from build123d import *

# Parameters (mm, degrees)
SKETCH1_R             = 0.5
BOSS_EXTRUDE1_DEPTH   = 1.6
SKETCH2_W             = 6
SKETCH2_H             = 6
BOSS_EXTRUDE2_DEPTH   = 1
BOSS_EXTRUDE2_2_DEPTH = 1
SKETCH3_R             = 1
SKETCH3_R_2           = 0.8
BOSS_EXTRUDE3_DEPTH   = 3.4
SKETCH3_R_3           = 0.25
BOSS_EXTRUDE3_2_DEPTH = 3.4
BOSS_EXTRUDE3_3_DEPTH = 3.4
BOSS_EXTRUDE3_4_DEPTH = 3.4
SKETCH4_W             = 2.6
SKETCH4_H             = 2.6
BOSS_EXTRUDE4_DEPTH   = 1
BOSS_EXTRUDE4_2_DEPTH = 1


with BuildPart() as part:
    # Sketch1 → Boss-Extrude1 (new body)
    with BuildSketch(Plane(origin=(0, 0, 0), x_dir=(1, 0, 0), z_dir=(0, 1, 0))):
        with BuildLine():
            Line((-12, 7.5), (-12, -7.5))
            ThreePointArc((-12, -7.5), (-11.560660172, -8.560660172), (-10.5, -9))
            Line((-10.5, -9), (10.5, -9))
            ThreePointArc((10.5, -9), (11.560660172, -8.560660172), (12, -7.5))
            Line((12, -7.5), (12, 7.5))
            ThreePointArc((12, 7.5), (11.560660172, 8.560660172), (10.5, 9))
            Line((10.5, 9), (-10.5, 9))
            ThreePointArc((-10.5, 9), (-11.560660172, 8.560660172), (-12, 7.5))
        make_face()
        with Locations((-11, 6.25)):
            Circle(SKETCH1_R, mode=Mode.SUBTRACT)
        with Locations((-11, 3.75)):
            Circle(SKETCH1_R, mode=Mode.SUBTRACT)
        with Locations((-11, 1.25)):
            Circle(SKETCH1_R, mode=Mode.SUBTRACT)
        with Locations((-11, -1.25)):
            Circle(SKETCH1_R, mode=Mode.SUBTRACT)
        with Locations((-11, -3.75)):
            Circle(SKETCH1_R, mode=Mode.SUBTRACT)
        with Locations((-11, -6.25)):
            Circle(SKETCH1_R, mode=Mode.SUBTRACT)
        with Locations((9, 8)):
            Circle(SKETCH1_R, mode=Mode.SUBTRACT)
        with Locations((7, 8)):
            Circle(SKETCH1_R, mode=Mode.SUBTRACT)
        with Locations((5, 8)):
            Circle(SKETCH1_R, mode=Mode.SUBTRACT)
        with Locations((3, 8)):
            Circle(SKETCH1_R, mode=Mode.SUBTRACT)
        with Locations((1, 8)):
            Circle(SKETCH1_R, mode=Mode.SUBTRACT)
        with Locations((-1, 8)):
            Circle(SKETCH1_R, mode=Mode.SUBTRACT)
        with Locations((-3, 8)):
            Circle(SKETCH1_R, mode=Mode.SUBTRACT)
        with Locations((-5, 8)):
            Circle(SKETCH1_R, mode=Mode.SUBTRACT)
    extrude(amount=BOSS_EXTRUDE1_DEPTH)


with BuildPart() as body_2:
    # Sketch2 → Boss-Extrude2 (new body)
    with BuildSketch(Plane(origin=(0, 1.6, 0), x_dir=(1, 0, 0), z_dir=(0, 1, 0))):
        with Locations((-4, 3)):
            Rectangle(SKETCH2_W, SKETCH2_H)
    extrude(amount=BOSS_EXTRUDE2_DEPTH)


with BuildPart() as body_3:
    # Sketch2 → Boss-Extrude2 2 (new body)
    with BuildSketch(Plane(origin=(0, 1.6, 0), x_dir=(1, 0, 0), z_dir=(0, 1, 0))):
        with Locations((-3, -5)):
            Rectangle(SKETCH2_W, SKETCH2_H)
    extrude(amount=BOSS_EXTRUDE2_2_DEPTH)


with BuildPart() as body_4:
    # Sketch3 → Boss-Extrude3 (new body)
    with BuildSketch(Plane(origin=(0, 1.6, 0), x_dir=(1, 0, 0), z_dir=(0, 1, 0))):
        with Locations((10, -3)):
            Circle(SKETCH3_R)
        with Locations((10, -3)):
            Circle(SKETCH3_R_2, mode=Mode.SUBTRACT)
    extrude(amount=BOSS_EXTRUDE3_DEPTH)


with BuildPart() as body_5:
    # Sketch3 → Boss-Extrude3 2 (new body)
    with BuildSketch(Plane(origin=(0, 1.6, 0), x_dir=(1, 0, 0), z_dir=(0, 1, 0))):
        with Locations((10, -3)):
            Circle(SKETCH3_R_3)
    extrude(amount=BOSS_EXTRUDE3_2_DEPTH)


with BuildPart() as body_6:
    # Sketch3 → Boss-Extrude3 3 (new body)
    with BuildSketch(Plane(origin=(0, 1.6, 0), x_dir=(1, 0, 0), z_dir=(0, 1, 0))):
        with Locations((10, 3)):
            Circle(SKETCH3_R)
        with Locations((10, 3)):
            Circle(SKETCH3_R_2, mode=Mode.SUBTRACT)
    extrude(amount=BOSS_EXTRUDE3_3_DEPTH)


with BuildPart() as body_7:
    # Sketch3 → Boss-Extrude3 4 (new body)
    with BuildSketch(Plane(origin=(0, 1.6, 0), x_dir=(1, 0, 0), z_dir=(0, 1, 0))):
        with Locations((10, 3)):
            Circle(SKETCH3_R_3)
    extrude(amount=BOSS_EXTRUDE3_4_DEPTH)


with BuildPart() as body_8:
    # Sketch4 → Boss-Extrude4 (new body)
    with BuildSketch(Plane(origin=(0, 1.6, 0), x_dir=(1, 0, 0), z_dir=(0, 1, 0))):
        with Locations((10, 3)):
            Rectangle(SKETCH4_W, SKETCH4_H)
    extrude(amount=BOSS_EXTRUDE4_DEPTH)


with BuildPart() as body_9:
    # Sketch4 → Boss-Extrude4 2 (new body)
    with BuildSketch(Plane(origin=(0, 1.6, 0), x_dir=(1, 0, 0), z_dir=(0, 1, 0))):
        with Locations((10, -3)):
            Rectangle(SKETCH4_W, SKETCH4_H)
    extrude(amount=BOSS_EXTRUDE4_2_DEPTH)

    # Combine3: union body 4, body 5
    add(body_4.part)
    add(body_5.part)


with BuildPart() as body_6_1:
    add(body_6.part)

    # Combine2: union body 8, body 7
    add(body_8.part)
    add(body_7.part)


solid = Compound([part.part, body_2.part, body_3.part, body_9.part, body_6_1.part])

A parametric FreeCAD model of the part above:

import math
import FreeCAD as App
import Part
import Sketcher
from FreeCAD import Vector
Q = App.Units.Quantity


def add_polygon(sketch, points):
    """Adds a closed chain of lines whose ends are joined by coincident constraints."""
    first, n = sketch.GeometryCount, len(points)
    for a, b in zip(points, points[1:] + points[:1]):
        sketch.addGeometry(Part.LineSegment(App.Vector(*a, 0), App.Vector(*b, 0)), False)
    for i in range(n):
        sketch.addConstraint(Sketcher.Constraint("Coincident", first + i, 2, first + (i + 1) % n, 1))

doc = App.newDocument("Part")
body = doc.addObject("PartDesign::Body", "Body")

sketch1 = body.newObject("Sketcher::SketchObject", "Sketch")
sketch1.AttachmentSupport = (doc.getObject("XZ_Plane"), [""])
sketch1.MapMode = "FlatFace"
sketch1.addGeometry([
    Part.LineSegment(Vector(-12, -7.5, 0), Vector(-12, 7.5, 0)),
    Part.ArcOfCircle(Part.Circle(Vector(-10.5, 7.5, 0), Vector(0, 0, 1), 1.5), math.radians(90), math.radians(180)),
    Part.LineSegment(Vector(-10.5, 9, 0), Vector(10.5, 9, 0)),
    Part.ArcOfCircle(Part.Circle(Vector(10.5, 7.5, 0), Vector(0, 0, 1), 1.5), math.radians(0), math.radians(90)),
    Part.LineSegment(Vector(12, 7.5, 0), Vector(12, -7.5, 0)),
    Part.ArcOfCircle(Part.Circle(Vector(10.5, -7.5, 0), Vector(0, 0, 1), 1.5), math.radians(-90), math.radians(0)),
    Part.LineSegment(Vector(10.5, -9, 0), Vector(-10.5, -9, 0)),
    Part.ArcOfCircle(Part.Circle(Vector(-10.5, -7.5, 0), Vector(0, 0, 1), 1.5), math.radians(180), math.radians(270)),
    Part.Circle(Vector(-11, 6.2, 0), Vector(0, 0, 1), 0.5),
    Part.Circle(Vector(-11, 3.8, 0), Vector(0, 0, 1), 0.5),
    Part.Circle(Vector(-11, 1.2, 0), Vector(0, 0, 1), 0.5),
    Part.Circle(Vector(-11, -1.2, 0), Vector(0, 0, 1), 0.5),
    Part.Circle(Vector(-11, -3.8, 0), Vector(0, 0, 1), 0.5),
    Part.Circle(Vector(-11, -6.2, 0), Vector(0, 0, 1), 0.5),
    Part.Circle(Vector(-5, -8, 0), Vector(0, 0, 1), 0.5),
    Part.Circle(Vector(-3, -8, 0), Vector(0, 0, 1), 0.5),
    Part.Circle(Vector(-1, -8, 0), Vector(0, 0, 1), 0.5),
    Part.Circle(Vector(1, -8, 0), Vector(0, 0, 1), 0.5),
    Part.Circle(Vector(3, -8, 0), Vector(0, 0, 1), 0.5),
    Part.Circle(Vector(5, -8, 0), Vector(0, 0, 1), 0.5),
    Part.Circle(Vector(7, -8, 0), Vector(0, 0, 1), 0.5),
    Part.Circle(Vector(9, -8, 0), Vector(0, 0, 1), 0.5),
], False)
sketch1.addConstraint([
    Sketcher.Constraint("Tangent", 0, 2, 1, 2),
    Sketcher.Constraint("Tangent", 1, 1, 2, 1),
    Sketcher.Constraint("Tangent", 2, 2, 3, 2),
    Sketcher.Constraint("Tangent", 3, 1, 4, 1),
    Sketcher.Constraint("Tangent", 4, 2, 5, 2),
    Sketcher.Constraint("Tangent", 5, 1, 6, 1),
    Sketcher.Constraint("Tangent", 6, 2, 7, 2),
    Sketcher.Constraint("Tangent", 7, 1, 0, 1),
    Sketcher.Constraint("Vertical", 0),
    Sketcher.Constraint("Horizontal", 2),
    Sketcher.Constraint("Vertical", 4),
    Sketcher.Constraint("Horizontal", 6),
    Sketcher.Constraint("Equal", 1, 3),
    Sketcher.Constraint("Equal", 3, 5),
    Sketcher.Constraint("Equal", 5, 7),
    Sketcher.Constraint("Equal", 8, 9),
    Sketcher.Constraint("Equal", 9, 10),
    Sketcher.Constraint("Equal", 10, 11),
    Sketcher.Constraint("Equal", 11, 12),
    Sketcher.Constraint("Equal", 12, 13),
    Sketcher.Constraint("Equal", 13, 14),
    Sketcher.Constraint("Equal", 14, 15),
    Sketcher.Constraint("Equal", 15, 16),
    Sketcher.Constraint("Equal", 16, 17),
    Sketcher.Constraint("Equal", 17, 18),
    Sketcher.Constraint("Equal", 18, 19),
    Sketcher.Constraint("Equal", 19, 20),
    Sketcher.Constraint("Equal", 20, 21),
    Sketcher.Constraint("Symmetric", 1, 3, 5, 3, -1, 1),
    Sketcher.Constraint("Symmetric", 16, 3, 17, 3, -2),
    Sketcher.Constraint("Symmetric", 15, 3, 18, 3, -2),
    Sketcher.Constraint("Symmetric", 14, 3, 19, 3, -2),
    Sketcher.Constraint("Symmetric", 10, 3, 11, 3, -1),
    Sketcher.Constraint("Symmetric", 9, 3, 12, 3, -1),
    Sketcher.Constraint("Symmetric", 8, 3, 13, 3, -1),
    Sketcher.Constraint("Horizontal", 14, 3, 15, 3),
    Sketcher.Constraint("Horizontal", 15, 3, 16, 3),
    Sketcher.Constraint("Horizontal", 19, 3, 20, 3),
    Sketcher.Constraint("Horizontal", 20, 3, 21, 3),
    Sketcher.Constraint("Vertical", 8, 3, 9, 3),
    Sketcher.Constraint("Vertical", 9, 3, 10, 3),
    Sketcher.Constraint("Diameter", 8, Q("1 mm")),
    Sketcher.Constraint("Radius", 1, Q("1.5 mm")),
    Sketcher.Constraint("DistanceX", 2, 1, 2, 2, Q("21 mm")),
    Sketcher.Constraint("DistanceY", 0, 1, 0, 2, Q("15 mm")),
    Sketcher.Constraint("DistanceX", 8, 3, -1, 1, Q("11 mm")),
    Sketcher.Constraint("DistanceX", 14, 3, -1, 1, Q("5 mm")),
    Sketcher.Constraint("DistanceY", 14, 3, -1, 1, Q("8 mm")),
    Sketcher.Constraint("DistanceX", 15, 3, -1, 1, Q("3 mm")),
    Sketcher.Constraint("DistanceX", 16, 3, -1, 1, Q("1 mm")),
    Sketcher.Constraint("DistanceX", -1, 1, 20, 3, Q("7 mm")),
    Sketcher.Constraint("DistanceX", -1, 1, 21, 3, Q("9 mm")),
    Sketcher.Constraint("DistanceY", 10, 3, 8, 3, Q("5 mm")),
    Sketcher.Constraint("DistanceY", 11, 3, 9, 3, Q("5 mm")),
    Sketcher.Constraint("DistanceY", 9, 3, 8, 3, Q("2.5 mm")),
])
pad1 = body.newObject("PartDesign::Pad", "Pad")
pad1.Profile = sketch1
pad1.Length = 1.6
pad1.Reversed = True
body2 = doc.addObject("PartDesign::Body", "Body001")

sketch2 = body2.newObject("Sketcher::SketchObject", "Sketch001")
sketch2.AttachmentSupport = (doc.getObject("XZ_Plane001"), [""])
sketch2.MapMode = "FlatFace"
sketch2.AttachmentOffset = App.Placement(Vector(0, 0, -1.6), App.Rotation())
add_polygon(sketch2, [(-7, -6), (-7, 0), (-1, 0), (-1, -6)])
sketch2.addConstraint([
    Sketcher.Constraint("Vertical", 0),
    Sketcher.Constraint("Horizontal", 1),
    Sketcher.Constraint("Vertical", 2),
    Sketcher.Constraint("Horizontal", 3),
    Sketcher.Constraint("PointOnObject", 0, 2, -1),
    Sketcher.Constraint("Equal", 3, 0),
    Sketcher.Constraint("DistanceX", 1, 1, 1, 2, Q("6 mm")),
    Sketcher.Constraint("DistanceX", 0, 2, -1, 1, Q("7 mm")),
])
pad2 = body2.newObject("PartDesign::Pad", "Pad001")
pad2.Profile = sketch2
pad2.Length = 1
pad2.Reversed = True
body3 = doc.addObject("PartDesign::Body", "Body002")

sketch3 = body3.newObject("Sketcher::SketchObject", "Sketch002")
sketch3.AttachmentSupport = (doc.getObject("XZ_Plane002"), [""])
sketch3.MapMode = "FlatFace"
sketch3.AttachmentOffset = App.Placement(Vector(0, 0, -1.6), App.Rotation())
add_polygon(sketch3, [(-6, 2), (-6, 8), (0, 8), (0, 2)])
sketch3.addConstraint([
    Sketcher.Constraint("Vertical", 0),
    Sketcher.Constraint("Horizontal", 1),
    Sketcher.Constraint("Vertical", 2),
    Sketcher.Constraint("Horizontal", 3),
    Sketcher.Constraint("PointOnObject", 1, 2, -2),
    Sketcher.Constraint("Equal", 3, 0),
    Sketcher.Constraint("DistanceX", 1, 1, 1, 2, Q("6 mm")),
    Sketcher.Constraint("DistanceY", -1, 1, 0, 2, Q("8 mm")),
])
pad3 = body3.newObject("PartDesign::Pad", "Pad002")
pad3.Profile = sketch3
pad3.Length = 1
pad3.Reversed = True
body4 = doc.addObject("PartDesign::Body", "Body003")

sketch4 = body4.newObject("Sketcher::SketchObject", "Sketch003")
sketch4.AttachmentSupport = (doc.getObject("XZ_Plane003"), [""])
sketch4.MapMode = "FlatFace"
sketch4.AttachmentOffset = App.Placement(Vector(0, 0, -1.6), App.Rotation())
sketch4.addGeometry([
    Part.Circle(Vector(10, 3, 0), Vector(0, 0, 1), 1),
    Part.Circle(Vector(10, 3, 0), Vector(0, 0, 1), 0.8),
], False)
sketch4.addConstraint([
    Sketcher.Constraint("Coincident", 1, 3, 0, 3),
    Sketcher.Constraint("Diameter", 0, Q("2 mm")),
    Sketcher.Constraint("Diameter", 1, Q("1.6 mm")),
    Sketcher.Constraint("DistanceX", -1, 1, 0, 3, Q("10 mm")),
    Sketcher.Constraint("DistanceY", -1, 1, 0, 3, Q("3 mm")),
])
pad4 = body4.newObject("PartDesign::Pad", "Pad003")
pad4.Profile = sketch4
pad4.Length = 3.4
pad4.Reversed = True
body5 = doc.addObject("PartDesign::Body", "Body004")

sketch5 = body5.newObject("Sketcher::SketchObject", "Sketch004")
sketch5.AttachmentSupport = (doc.getObject("XZ_Plane004"), [""])
sketch5.MapMode = "FlatFace"
sketch5.AttachmentOffset = App.Placement(Vector(0, 0, -1.6), App.Rotation())
sketch5.addGeometry(Part.Circle(Vector(10, 3, 0), Vector(0, 0, 1), 0.25), False)
sketch5.addConstraint([
    Sketcher.Constraint("Diameter", 0, Q("0.5 mm")),
    Sketcher.Constraint("DistanceX", -1, 1, 0, 3, Q("10 mm")),
    Sketcher.Constraint("DistanceY", -1, 1, 0, 3, Q("3 mm")),
])
pad5 = body5.newObject("PartDesign::Pad", "Pad004")
pad5.Profile = sketch5
pad5.Length = 3.4
pad5.Reversed = True
body6 = doc.addObject("PartDesign::Body", "Body005")

sketch6 = body6.newObject("Sketcher::SketchObject", "Sketch005")
sketch6.AttachmentSupport = (doc.getObject("XZ_Plane005"), [""])
sketch6.MapMode = "FlatFace"
sketch6.AttachmentOffset = App.Placement(Vector(0, 0, -1.6), App.Rotation())
sketch6.addGeometry([
    Part.Circle(Vector(10, -3, 0), Vector(0, 0, 1), 1),
    Part.Circle(Vector(10, -3, 0), Vector(0, 0, 1), 0.8),
], False)
sketch6.addConstraint([
    Sketcher.Constraint("Coincident", 1, 3, 0, 3),
    Sketcher.Constraint("Diameter", 0, Q("2 mm")),
    Sketcher.Constraint("Diameter", 1, Q("1.6 mm")),
    Sketcher.Constraint("DistanceX", -1, 1, 0, 3, Q("10 mm")),
    Sketcher.Constraint("DistanceY", 0, 3, -1, 1, Q("3 mm")),
])
pad6 = body6.newObject("PartDesign::Pad", "Pad005")
pad6.Profile = sketch6
pad6.Length = 3.4
pad6.Reversed = True
body7 = doc.addObject("PartDesign::Body", "Body006")

sketch7 = body7.newObject("Sketcher::SketchObject", "Sketch006")
sketch7.AttachmentSupport = (doc.getObject("XZ_Plane006"), [""])
sketch7.MapMode = "FlatFace"
sketch7.AttachmentOffset = App.Placement(Vector(0, 0, -1.6), App.Rotation())
sketch7.addGeometry(Part.Circle(Vector(10, -3, 0), Vector(0, 0, 1), 0.25), False)
sketch7.addConstraint([
    Sketcher.Constraint("Diameter", 0, Q("0.5 mm")),
    Sketcher.Constraint("DistanceX", -1, 1, 0, 3, Q("10 mm")),
    Sketcher.Constraint("DistanceY", 0, 3, -1, 1, Q("3 mm")),
])
pad7 = body7.newObject("PartDesign::Pad", "Pad006")
pad7.Profile = sketch7
pad7.Length = 3.4
pad7.Reversed = True
body8 = doc.addObject("PartDesign::Body", "Body007")

sketch8 = body8.newObject("Sketcher::SketchObject", "Sketch007")
sketch8.AttachmentSupport = (doc.getObject("XZ_Plane007"), [""])
sketch8.MapMode = "FlatFace"
sketch8.AttachmentOffset = App.Placement(Vector(0, 0, -1.6), App.Rotation())
add_polygon(sketch8, [(8.7, -4.3), (8.7, -1.7), (11.3, -1.7), (11.3, -4.3)])
sketch8.addConstraint([
    Sketcher.Constraint("Vertical", 0),
    Sketcher.Constraint("Horizontal", 1),
    Sketcher.Constraint("Vertical", 2),
    Sketcher.Constraint("Horizontal", 3),
    Sketcher.Constraint("Equal", 3, 0),
    Sketcher.Constraint("DistanceX", 1, 1, 1, 2, Q("2.6 mm")),
    Sketcher.Constraint("DistanceX", -1, 1, 0, 2, Q("8.7 mm")),
    Sketcher.Constraint("DistanceY", 0, 2, -1, 1, Q("1.7 mm")),
])
pad8 = body8.newObject("PartDesign::Pad", "Pad007")
pad8.Profile = sketch8
pad8.Length = 1
pad8.Reversed = True
body9 = doc.addObject("PartDesign::Body", "Body008")

sketch9 = body9.newObject("Sketcher::SketchObject", "Sketch008")
sketch9.AttachmentSupport = (doc.getObject("XZ_Plane008"), [""])
sketch9.MapMode = "FlatFace"
sketch9.AttachmentOffset = App.Placement(Vector(0, 0, -1.6), App.Rotation())
add_polygon(sketch9, [(8.7, 1.7), (8.7, 4.3), (11.3, 4.3), (11.3, 1.7)])
sketch9.addConstraint([
    Sketcher.Constraint("Vertical", 0),
    Sketcher.Constraint("Horizontal", 1),
    Sketcher.Constraint("Vertical", 2),
    Sketcher.Constraint("Horizontal", 3),
    Sketcher.Constraint("Equal", 3, 0),
    Sketcher.Constraint("DistanceX", 1, 1, 1, 2, Q("2.6 mm")),
    Sketcher.Constraint("DistanceX", -1, 1, 0, 2, Q("8.7 mm")),
    Sketcher.Constraint("DistanceY", -1, 1, 0, 2, Q("4.3 mm")),
])
pad9 = body9.newObject("PartDesign::Pad", "Pad008")
pad9.Profile = sketch9
pad9.Length = 1
pad9.Reversed = True
doc.recompute()

boolean = body9.newObject("PartDesign::Boolean", "Boolean")
boolean.Type = "Fuse"
boolean.addObjects([body4])
doc.recompute()

boolean2 = body9.newObject("PartDesign::Boolean", "Boolean001")
boolean2.Type = "Fuse"
boolean2.addObjects([body5])
doc.recompute()

boolean3 = body6.newObject("PartDesign::Boolean", "Boolean002")
boolean3.Type = "Fuse"
boolean3.addObjects([body8])
doc.recompute()

boolean4 = body6.newObject("PartDesign::Boolean", "Boolean003")
boolean4.Type = "Fuse"
boolean4.addObjects([body7])

doc.recompute()
